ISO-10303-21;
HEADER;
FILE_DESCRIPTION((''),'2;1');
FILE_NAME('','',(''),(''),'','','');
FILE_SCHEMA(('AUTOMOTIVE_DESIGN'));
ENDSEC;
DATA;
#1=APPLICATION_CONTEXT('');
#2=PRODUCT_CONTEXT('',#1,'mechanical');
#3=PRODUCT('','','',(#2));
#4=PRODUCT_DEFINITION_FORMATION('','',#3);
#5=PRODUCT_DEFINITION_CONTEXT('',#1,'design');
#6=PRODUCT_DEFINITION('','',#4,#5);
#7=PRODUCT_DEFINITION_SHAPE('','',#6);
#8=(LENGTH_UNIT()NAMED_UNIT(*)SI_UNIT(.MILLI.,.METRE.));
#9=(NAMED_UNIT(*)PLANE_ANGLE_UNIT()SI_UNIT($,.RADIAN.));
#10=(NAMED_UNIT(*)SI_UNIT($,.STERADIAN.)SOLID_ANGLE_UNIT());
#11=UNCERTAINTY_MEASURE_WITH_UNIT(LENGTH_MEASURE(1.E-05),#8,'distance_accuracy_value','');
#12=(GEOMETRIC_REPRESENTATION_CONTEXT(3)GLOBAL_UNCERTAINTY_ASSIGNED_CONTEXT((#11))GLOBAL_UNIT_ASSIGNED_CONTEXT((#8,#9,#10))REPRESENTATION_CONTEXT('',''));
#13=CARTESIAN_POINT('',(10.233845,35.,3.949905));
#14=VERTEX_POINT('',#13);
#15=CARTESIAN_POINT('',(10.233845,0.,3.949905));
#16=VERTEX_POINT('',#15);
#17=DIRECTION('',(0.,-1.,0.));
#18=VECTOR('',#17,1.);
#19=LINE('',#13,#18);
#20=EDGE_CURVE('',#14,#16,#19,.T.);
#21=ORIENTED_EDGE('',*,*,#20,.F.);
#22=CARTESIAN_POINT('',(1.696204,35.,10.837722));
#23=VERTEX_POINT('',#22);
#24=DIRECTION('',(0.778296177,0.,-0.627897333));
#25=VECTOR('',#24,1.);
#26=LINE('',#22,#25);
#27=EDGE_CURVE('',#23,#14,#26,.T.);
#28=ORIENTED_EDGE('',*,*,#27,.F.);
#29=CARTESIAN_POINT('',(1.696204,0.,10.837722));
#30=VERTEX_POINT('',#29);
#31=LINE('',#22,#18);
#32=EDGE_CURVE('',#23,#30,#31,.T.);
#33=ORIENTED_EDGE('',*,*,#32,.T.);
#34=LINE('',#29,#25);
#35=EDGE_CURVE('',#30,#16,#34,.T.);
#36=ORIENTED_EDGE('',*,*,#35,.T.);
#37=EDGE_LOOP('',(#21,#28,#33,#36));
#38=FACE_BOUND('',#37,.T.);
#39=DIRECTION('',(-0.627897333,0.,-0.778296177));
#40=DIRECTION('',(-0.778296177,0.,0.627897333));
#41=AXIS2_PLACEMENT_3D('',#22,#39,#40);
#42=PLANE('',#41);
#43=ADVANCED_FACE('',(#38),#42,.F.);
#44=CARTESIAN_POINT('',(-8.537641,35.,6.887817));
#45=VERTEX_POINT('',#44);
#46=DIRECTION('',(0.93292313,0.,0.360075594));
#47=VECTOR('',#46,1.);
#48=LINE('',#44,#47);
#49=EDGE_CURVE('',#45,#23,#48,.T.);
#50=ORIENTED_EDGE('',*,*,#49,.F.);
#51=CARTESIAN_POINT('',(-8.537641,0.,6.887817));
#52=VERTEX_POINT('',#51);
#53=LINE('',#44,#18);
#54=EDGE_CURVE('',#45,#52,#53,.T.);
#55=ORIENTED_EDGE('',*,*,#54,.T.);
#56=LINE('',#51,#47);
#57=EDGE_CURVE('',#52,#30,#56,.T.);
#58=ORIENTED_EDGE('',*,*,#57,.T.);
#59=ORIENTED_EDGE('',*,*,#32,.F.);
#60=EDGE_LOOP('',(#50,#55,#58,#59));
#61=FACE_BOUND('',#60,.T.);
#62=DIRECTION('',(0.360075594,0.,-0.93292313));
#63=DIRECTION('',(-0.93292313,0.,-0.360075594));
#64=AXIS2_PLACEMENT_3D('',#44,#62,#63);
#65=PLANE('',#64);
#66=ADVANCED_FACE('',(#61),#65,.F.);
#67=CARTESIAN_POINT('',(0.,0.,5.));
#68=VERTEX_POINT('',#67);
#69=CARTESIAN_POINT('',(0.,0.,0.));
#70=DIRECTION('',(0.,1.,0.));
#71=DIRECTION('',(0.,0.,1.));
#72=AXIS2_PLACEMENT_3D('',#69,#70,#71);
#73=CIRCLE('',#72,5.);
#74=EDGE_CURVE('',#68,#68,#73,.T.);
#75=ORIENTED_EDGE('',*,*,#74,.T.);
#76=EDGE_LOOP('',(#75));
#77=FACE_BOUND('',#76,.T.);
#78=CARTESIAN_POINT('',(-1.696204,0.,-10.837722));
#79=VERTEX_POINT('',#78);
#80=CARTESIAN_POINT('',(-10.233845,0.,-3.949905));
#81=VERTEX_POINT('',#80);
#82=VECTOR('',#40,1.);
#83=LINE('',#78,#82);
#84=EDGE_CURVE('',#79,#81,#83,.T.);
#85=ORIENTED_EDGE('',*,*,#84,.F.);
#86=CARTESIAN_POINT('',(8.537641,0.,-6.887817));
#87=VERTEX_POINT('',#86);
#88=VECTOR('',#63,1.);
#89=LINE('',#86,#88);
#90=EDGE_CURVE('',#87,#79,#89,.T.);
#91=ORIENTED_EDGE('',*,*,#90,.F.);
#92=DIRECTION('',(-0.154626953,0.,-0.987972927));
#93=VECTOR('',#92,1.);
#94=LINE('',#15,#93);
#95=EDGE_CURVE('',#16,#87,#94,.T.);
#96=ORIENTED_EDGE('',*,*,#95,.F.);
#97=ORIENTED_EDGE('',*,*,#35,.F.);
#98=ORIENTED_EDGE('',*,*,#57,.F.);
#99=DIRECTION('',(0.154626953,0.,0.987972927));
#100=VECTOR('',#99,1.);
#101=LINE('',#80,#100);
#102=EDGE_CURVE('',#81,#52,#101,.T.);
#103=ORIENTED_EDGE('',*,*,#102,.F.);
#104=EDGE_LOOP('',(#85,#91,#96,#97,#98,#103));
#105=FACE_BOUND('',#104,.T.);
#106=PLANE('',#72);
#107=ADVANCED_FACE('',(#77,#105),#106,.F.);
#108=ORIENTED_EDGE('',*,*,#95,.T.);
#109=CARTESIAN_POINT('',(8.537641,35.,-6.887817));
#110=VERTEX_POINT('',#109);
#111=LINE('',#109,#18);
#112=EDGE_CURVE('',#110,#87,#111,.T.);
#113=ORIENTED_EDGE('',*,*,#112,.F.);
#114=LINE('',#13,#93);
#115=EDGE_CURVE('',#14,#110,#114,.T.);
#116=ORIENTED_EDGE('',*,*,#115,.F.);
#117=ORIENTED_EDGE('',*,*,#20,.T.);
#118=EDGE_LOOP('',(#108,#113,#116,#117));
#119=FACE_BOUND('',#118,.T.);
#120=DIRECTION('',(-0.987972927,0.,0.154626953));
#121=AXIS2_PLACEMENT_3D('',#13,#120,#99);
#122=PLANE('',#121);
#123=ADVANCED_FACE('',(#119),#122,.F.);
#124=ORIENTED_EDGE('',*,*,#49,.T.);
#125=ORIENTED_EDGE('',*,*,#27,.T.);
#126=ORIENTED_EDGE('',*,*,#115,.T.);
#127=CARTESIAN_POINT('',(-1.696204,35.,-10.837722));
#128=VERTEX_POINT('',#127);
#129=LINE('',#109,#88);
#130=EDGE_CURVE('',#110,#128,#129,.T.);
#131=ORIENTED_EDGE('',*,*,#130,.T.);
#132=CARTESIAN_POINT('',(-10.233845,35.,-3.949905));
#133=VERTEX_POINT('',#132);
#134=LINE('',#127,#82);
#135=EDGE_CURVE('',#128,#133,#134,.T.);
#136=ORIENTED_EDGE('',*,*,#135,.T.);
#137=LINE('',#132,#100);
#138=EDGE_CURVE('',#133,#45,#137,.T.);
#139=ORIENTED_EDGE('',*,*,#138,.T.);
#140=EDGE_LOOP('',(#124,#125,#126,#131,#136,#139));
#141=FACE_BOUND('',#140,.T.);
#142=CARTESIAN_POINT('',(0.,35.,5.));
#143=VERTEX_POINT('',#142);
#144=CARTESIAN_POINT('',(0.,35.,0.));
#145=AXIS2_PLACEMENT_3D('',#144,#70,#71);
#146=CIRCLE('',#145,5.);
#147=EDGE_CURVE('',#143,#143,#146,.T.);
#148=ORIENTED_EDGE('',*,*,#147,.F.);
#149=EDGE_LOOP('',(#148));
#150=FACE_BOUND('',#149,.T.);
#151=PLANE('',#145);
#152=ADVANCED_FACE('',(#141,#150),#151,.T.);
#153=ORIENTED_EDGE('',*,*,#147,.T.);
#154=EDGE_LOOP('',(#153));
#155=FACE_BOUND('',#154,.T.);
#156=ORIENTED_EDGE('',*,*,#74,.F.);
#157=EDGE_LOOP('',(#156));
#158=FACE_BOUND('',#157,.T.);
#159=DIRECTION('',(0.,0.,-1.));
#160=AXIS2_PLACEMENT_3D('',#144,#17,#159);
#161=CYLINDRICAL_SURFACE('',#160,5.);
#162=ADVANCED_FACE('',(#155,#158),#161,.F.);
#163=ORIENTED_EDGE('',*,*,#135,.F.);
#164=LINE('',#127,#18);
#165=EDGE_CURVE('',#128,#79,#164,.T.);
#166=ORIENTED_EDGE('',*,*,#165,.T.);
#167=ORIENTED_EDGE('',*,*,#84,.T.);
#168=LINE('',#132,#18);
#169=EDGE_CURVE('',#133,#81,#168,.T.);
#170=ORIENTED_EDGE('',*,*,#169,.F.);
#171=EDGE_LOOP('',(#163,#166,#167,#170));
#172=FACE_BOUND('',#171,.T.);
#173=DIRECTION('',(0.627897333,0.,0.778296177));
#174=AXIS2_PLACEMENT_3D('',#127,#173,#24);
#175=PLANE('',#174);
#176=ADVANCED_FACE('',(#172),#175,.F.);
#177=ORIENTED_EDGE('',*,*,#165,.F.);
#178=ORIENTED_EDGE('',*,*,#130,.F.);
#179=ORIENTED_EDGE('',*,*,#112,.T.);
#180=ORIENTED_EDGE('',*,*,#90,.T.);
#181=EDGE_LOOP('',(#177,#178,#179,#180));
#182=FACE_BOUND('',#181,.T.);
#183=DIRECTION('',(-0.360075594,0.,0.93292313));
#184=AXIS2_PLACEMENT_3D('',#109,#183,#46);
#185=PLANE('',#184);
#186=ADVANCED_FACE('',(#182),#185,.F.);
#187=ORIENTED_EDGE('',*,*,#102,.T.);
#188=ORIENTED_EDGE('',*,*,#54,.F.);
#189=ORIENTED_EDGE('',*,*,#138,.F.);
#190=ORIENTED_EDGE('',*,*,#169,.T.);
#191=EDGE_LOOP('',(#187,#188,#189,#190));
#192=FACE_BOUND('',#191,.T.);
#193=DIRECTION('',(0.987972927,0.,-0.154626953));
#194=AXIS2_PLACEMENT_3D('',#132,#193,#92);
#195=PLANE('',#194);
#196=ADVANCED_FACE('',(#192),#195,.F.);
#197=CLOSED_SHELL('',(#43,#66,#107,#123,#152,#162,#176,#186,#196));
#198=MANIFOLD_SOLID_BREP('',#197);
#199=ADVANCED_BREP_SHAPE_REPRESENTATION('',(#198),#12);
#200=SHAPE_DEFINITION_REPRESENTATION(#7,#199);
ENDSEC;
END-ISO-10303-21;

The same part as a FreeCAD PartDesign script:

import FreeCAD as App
import Part
import Sketcher

doc = App.newDocument("Part")
body = doc.addObject("PartDesign::Body", "Body")

sketch1 = body.newObject("Sketcher::SketchObject", "Sketch")
sketch1.AttachmentSupport = (doc.getObject("XZ_Plane"), [""])
sketch1.MapMode = "FlatFace"
sketch1.addGeometry(Part.LineSegment(App.Vector(-10, -4, 0), App.Vector(-9, 7, 0)), False)
sketch1.addGeometry(Part.LineSegment(App.Vector(-9, 7, 0), App.Vector(2, 11, 0)), False)
sketch1.addGeometry(Part.LineSegment(App.Vector(2, 11, 0), App.Vector(10, 4, 0)), False)
sketch1.addGeometry(Part.LineSegment(App.Vector(10, 4, 0), App.Vector(9, -7, 0)), False)
sketch1.addGeometry(Part.LineSegment(App.Vector(9, -7, 0), App.Vector(-2, -11, 0)), False)
sketch1.addGeometry(Part.LineSegment(App.Vector(-2, -11, 0), App.Vector(-10, -4, 0)), False)
sketch1.addGeometry(Part.Circle(App.Vector(0, 0, 0), App.Vector(0, 0, 1), 5), False)
sketch1.addConstraint(Sketcher.Constraint("Coincident", 0, 2, 1, 1))
sketch1.addConstraint(Sketcher.Constraint("Coincident", 1, 2, 2, 1))
sketch1.addConstraint(Sketcher.Constraint("Coincident", 2, 2, 3, 1))
sketch1.addConstraint(Sketcher.Constraint("Coincident", 3, 2, 4, 1))
sketch1.addConstraint(Sketcher.Constraint("Coincident", 4, 2, 5, 1))
sketch1.addConstraint(Sketcher.Constraint("Coincident", 5, 2, 0, 1))
sketch1.addConstraint(Sketcher.Constraint("Coincident", 6, 3, -1, 1))
sketch1.addConstraint(Sketcher.Constraint("Symmetric", 0, 2, 3, 2, -1, 1))
sketch1.addConstraint(Sketcher.Constraint("Symmetric", 1, 2, 4, 2, -1, 1))
sketch1.addConstraint(Sketcher.Constraint("Symmetric", 2, 2, 5, 2, -1, 1))
sketch1.addConstraint(Sketcher.Constraint("Equal", 0, 1))
sketch1.addConstraint(Sketcher.Constraint("Equal", 1, 2))
sketch1.addConstraint(Sketcher.Constraint("Diameter", 6, 10.0))
sketch1.addConstraint(Sketcher.Constraint("DistanceX", 0, 2, -1, 1, 8.537641))
sketch1.addConstraint(Sketcher.Constraint("DistanceX", 1, 2, 2, 2, 8.537641))
sketch1.addConstraint(Sketcher.Constraint("DistanceY", 3, 2, 1, 2, 17.725539))
sketch1.addConstraint(Sketcher.Constraint("DistanceX", 4, 2, 2, 2, 11.930049))
pad1 = body.newObject("PartDesign::Pad", "Pad")
pad1.Profile = sketch1
pad1.Length = 35
pad1.Reversed = True

doc.recompute()
